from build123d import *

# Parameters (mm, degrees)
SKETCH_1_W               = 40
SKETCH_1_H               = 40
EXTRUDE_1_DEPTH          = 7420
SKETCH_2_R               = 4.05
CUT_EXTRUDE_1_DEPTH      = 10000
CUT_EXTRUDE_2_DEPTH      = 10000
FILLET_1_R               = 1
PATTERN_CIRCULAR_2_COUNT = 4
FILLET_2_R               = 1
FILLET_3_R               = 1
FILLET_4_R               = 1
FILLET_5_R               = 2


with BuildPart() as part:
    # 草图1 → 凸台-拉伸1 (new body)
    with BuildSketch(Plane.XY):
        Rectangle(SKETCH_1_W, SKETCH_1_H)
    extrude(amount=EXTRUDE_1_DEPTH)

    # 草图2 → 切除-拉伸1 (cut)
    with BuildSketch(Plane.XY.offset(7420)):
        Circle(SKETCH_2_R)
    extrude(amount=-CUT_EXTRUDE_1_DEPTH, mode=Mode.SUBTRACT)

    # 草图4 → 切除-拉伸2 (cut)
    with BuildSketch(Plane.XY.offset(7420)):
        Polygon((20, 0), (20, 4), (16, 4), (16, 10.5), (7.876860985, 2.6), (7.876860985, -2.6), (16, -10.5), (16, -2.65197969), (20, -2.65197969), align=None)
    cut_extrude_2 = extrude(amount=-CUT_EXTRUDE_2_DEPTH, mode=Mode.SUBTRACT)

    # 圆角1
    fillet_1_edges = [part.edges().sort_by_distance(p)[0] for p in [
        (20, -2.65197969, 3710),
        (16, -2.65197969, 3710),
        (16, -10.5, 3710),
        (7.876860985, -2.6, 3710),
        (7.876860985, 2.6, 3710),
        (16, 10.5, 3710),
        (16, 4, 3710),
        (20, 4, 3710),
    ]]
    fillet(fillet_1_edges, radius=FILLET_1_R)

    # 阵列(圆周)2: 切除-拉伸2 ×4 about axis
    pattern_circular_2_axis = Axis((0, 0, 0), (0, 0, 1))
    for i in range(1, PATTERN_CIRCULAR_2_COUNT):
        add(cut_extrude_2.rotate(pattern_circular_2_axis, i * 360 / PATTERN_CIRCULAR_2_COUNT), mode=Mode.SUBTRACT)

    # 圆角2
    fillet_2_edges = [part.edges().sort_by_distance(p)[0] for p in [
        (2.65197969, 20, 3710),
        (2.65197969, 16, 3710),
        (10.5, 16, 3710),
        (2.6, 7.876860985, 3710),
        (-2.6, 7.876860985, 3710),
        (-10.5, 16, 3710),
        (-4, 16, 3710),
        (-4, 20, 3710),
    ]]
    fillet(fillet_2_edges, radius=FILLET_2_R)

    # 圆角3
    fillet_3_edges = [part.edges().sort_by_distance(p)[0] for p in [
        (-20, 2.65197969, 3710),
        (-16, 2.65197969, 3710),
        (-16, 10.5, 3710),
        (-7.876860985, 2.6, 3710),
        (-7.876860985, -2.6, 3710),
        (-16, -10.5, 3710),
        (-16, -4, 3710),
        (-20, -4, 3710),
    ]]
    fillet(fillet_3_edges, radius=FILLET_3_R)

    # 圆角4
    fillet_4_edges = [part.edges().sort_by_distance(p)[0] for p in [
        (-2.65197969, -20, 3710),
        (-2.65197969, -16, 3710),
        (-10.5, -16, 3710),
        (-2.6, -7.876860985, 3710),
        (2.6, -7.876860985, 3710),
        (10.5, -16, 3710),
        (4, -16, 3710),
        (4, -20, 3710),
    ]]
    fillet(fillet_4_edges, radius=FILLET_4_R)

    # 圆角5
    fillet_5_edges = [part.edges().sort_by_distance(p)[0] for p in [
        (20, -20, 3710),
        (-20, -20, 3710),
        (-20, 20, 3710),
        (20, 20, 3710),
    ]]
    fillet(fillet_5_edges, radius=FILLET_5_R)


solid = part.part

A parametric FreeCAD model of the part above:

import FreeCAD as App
import Part
import Sketcher
from FreeCAD import Vector
Q = App.Units.Quantity


def edges_at(feature, points):
    """Names of the edges that pass closest to the given points."""
    edges = feature.Shape.Edges
    near = lambda p: min(range(len(edges)), key=lambda i: edges[i].distToShape(Part.Vertex(*p))[0])
    return sorted({f"Edge{near(p) + 1}" for p in points})


def add_polygon(sketch, points):
    """Adds a closed chain of lines whose ends are joined by coincident constraints."""
    first, n = sketch.GeometryCount, len(points)
    for a, b in zip(points, points[1:] + points[:1]):
        sketch.addGeometry(Part.LineSegment(App.Vector(*a, 0), App.Vector(*b, 0)), False)
    for i in range(n):
        sketch.addConstraint(Sketcher.Constraint("Coincident", first + i, 2, first + (i + 1) % n, 1))

doc = App.newDocument("Part")
body = doc.addObject("PartDesign::Body", "Body")

# Sketch on XY plane
sketch1 = body.newObject("Sketcher::SketchObject", "Sketch")
sketch1.AttachmentSupport = (doc.getObject("XY_Plane"), [""])
sketch1.MapMode = "FlatFace"
add_polygon(sketch1, [(-20, 20), (-20, -20), (20, -20), (20, 20)])  # lines 0-3
sketch1.addConstraint(Sketcher.Constraint("Vertical", 0))
sketch1.addConstraint(Sketcher.Constraint("Horizontal", 1))
sketch1.addConstraint(Sketcher.Constraint("Vertical", 2))
sketch1.addConstraint(Sketcher.Constraint("Horizontal", 3))
sketch1.addConstraint(Sketcher.Constraint("Symmetric", 0, 2, 2, 2, -1, 1))
sketch1.addConstraint(Sketcher.Constraint("Equal", 3, 0))
sketch1.addConstraint(Sketcher.Constraint("DistanceX", 1, 1, 1, 2, Q("40 mm")))
pad1 = body.newObject("PartDesign::Pad", "Pad")
pad1.Profile = sketch1
pad1.Length = 7420

# Sketch on XY plane
sketch2 = body.newObject("Sketcher::SketchObject", "Sketch001")
sketch2.AttachmentSupport = (doc.getObject("XY_Plane"), [""])
sketch2.MapMode = "FlatFace"
sketch2.AttachmentOffset = App.Placement(Vector(0, 0, 7420), App.Rotation())
sketch2.addGeometry(Part.Circle(Vector(0, 0, 0), Vector(0, 0, 1), 4), False)
sketch2.addConstraint(Sketcher.Constraint("Coincident", 0, 3, -1, 1))
sketch2.addConstraint(Sketcher.Constraint("Diameter", 0, Q("8.1 mm")))
pocket1 = body.newObject("PartDesign::Pocket", "Pocket")
pocket1.Profile = sketch2
pocket1.Length = 10000

# Sketch on XY plane
sketch3 = body.newObject("Sketcher::SketchObject", "Sketch002")
sketch3.AttachmentSupport = (doc.getObject("XY_Plane"), [""])
sketch3.MapMode = "FlatFace"
sketch3.AttachmentOffset = App.Placement(Vector(0, 0, 7420), App.Rotation())
add_polygon(sketch3, [(20, 4), (16, 4), (16, 10.5), (7.9, 2.6), (7.9, -2.6), (16, -10.5), (16, -2.7), (20, -2.7)])  # lines 0-7
sketch3.addConstraint(Sketcher.Constraint("Horizontal", 0))
sketch3.addConstraint(Sketcher.Constraint("Vertical", 1))
sketch3.addConstraint(Sketcher.Constraint("Vertical", 3))
sketch3.addConstraint(Sketcher.Constraint("Vertical", 5))
sketch3.addConstraint(Sketcher.Constraint("Horizontal", 6))
sketch3.addConstraint(Sketcher.Constraint("Vertical", 7))
sketch3.addConstraint(Sketcher.Constraint("Symmetric", 1, 2, 4, 2, -1))
sketch3.addConstraint(Sketcher.Constraint("Equal", 2, 4))
sketch3.addConstraint(Sketcher.Constraint("DistanceX", 0, 2, 0, 1, Q("4 mm")))
sketch3.addConstraint(Sketcher.Constraint("DistanceY", 1, 1, 1, 2, Q("6.5 mm")))
sketch3.addConstraint(Sketcher.Constraint("DistanceY", 3, 2, 3, 1, Q("5.2 mm")))
sketch3.addConstraint(Sketcher.Constraint("DistanceX", -1, 1, 0, 2, Q("16 mm")))
sketch3.addConstraint(Sketcher.Constraint("DistanceY", -1, 1, 0, 2, Q("4 mm")))
sketch3.addConstraint(Sketcher.Constraint("DistanceY", 5, 1, 5, 2, Q("7.84802 mm")))
sketch3.addConstraint(Sketcher.Constraint("Distance", 2, Q("11.331169 mm")))
pocket2 = body.newObject("PartDesign::Pocket", "Pocket001")
pocket2.Profile = sketch3
pocket2.Length = 10000
doc.recompute()

fillet = body.newObject("PartDesign::Fillet", "Fillet")
fillet.Base = (pocket2, edges_at(pocket2, [
    (20, -2.652, 3710),
    (16, -2.652, 3710),
    (16, -10.5, 3710),
    (7.877, -2.6, 3710),
    (7.877, 2.6, 3710),
    (16, 10.5, 3710),
    (16, 4, 3710),
    (20, 4, 3710),
]))
fillet.Radius = 1
doc.recompute()

polarpattern = body.newObject("PartDesign::PolarPattern", "PolarPattern")
polarpattern.Originals = [pocket2]
polarpattern.Axis = (doc.getObject("Z_Axis"), [""])
polarpattern.Angle = 360
polarpattern.Occurrences = 4
body.Tip = polarpattern
doc.recompute()

fillet2 = body.newObject("PartDesign::Fillet", "Fillet001")
fillet2.Base = (polarpattern, edges_at(polarpattern, [
    (2.652, 20, 3710),
    (2.652, 16, 3710),
    (10.5, 16, 3710),
    (2.6, 7.877, 3710),
    (-2.6, 7.877, 3710),
    (-10.5, 16, 3710),
    (-4, 16, 3710),
    (-4, 20, 3710),
]))
fillet2.Radius = 1
doc.recompute()

fillet3 = body.newObject("PartDesign::Fillet", "Fillet002")
fillet3.Base = (fillet2, edges_at(fillet2, [
    (-20, 2.652, 3710),
    (-16, 2.652, 3710),
    (-16, 10.5, 3710),
    (-7.877, 2.6, 3710),
    (-7.877, -2.6, 3710),
    (-16, -10.5, 3710),
    (-16, -4, 3710),
    (-20, -4, 3710),
]))
fillet3.Radius = 1
doc.recompute()

fillet4 = body.newObject("PartDesign::Fillet", "Fillet003")
fillet4.Base = (fillet3, edges_at(fillet3, [
    (-2.652, -20, 3710),
    (-2.652, -16, 3710),
    (-10.5, -16, 3710),
    (-2.6, -7.877, 3710),
    (2.6, -7.877, 3710),
    (10.5, -16, 3710),
    (4, -16, 3710),
    (4, -20, 3710),
]))
fillet4.Radius = 1
doc.recompute()

fillet5 = body.newObject("PartDesign::Fillet", "Fillet004")
fillet5.Base = (fillet4, edges_at(fillet4, [
    (20, -20, 3710),
    (-20, -20, 3710),
    (-20, 20, 3710),
    (20, 20, 3710),
]))
fillet5.Radius = 2

doc.recompute()
